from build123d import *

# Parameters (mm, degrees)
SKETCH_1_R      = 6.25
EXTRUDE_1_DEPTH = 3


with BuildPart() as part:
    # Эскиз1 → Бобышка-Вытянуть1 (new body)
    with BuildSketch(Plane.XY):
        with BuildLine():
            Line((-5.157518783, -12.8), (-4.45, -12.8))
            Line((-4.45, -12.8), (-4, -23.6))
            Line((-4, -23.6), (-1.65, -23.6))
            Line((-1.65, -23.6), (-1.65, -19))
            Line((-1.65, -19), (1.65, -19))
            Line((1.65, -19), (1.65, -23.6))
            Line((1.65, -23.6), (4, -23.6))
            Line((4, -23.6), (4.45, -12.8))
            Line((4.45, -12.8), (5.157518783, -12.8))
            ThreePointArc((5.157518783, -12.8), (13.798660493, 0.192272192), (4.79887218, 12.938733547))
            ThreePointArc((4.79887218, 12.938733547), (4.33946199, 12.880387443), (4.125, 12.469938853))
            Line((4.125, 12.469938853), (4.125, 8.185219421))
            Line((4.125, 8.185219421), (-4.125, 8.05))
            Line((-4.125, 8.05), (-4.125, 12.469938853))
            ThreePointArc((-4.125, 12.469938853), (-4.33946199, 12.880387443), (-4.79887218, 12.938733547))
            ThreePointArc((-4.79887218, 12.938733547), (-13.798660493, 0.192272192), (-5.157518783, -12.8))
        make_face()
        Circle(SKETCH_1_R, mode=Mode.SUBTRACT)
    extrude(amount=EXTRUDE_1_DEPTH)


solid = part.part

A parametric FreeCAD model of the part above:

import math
import FreeCAD as App
import Part
import Sketcher

V = App.Vector
Q = App.Units.Quantity

doc = App.newDocument("Part")
body = doc.addObject("PartDesign::Body", "Body")

# Sketch on XY plane
sketch1 = body.newObject("Sketcher::SketchObject", "Sketch")
sketch1.AttachmentSupport = (doc.getObject("XY_Plane"), [""])
sketch1.MapMode = "FlatFace"
sketch1.addGeometry(Part.LineSegment(V(-5.2, -12.8, 0), V(-4.5, -12.8, 0)), False)
sketch1.addGeometry(Part.LineSegment(V(-4.5, -12.8, 0), V(-4, -23.6, 0)), False)
sketch1.addGeometry(Part.LineSegment(V(-4, -23.6, 0), V(-1.6, -23.6, 0)), False)
sketch1.addGeometry(Part.LineSegment(V(-1.6, -23.6, 0), V(-1.6, -19, 0)), False)
sketch1.addGeometry(Part.LineSegment(V(-1.6, -19, 0), V(1.6, -19, 0)), False)
sketch1.addGeometry(Part.LineSegment(V(1.6, -19, 0), V(1.6, -23.6, 0)), False)
sketch1.addGeometry(Part.LineSegment(V(1.6, -23.6, 0), V(4, -23.6, 0)), False)
sketch1.addGeometry(Part.LineSegment(V(4, -23.6, 0), V(4.5, -12.8, 0)), False)
sketch1.addGeometry(Part.LineSegment(V(4.5, -12.8, 0), V(5.2, -12.8, 0)), False)
sketch1.addGeometry(Part.ArcOfCircle(Part.Circle(V(0, 0, 0), V(0, 0, 1), 13.8), math.radians(-68), math.radians(70)), False)
sketch1.addGeometry(Part.ArcOfCircle(Part.Circle(V(4.6, 12.5, 0), V(0, 0, 1), 0.5), math.radians(70), math.radians(180)), False)
sketch1.addGeometry(Part.LineSegment(V(4.1, 12.5, 0), V(4.1, 8.2, 0)), False)
sketch1.addGeometry(Part.LineSegment(V(4.1, 8.2, 0), V(-4.1, 8.1, 0)), False)
sketch1.addGeometry(Part.LineSegment(V(-4.1, 8.1, 0), V(-4.1, 12.5, 0)), False)
sketch1.addGeometry(Part.ArcOfCircle(Part.Circle(V(-4.6, 12.5, 0), V(0, 0, 1), 0.5), math.radians(0), math.radians(110)), False)
sketch1.addGeometry(Part.ArcOfCircle(Part.Circle(V(0, 0, 0), V(0, 0, 1), 13.8), math.radians(110), math.radians(248)), False)
sketch1.addGeometry(Part.Circle(V(0, 0, 0), V(0, 0, 1), 6.2), False)
sketch1.addConstraint(Sketcher.Constraint("Coincident", 0, 2, 1, 1))
sketch1.addConstraint(Sketcher.Constraint("Coincident", 1, 2, 2, 1))
sketch1.addConstraint(Sketcher.Constraint("Coincident", 2, 2, 3, 1))
sketch1.addConstraint(Sketcher.Constraint("Coincident", 3, 2, 4, 1))
sketch1.addConstraint(Sketcher.Constraint("Coincident", 4, 2, 5, 1))
sketch1.addConstraint(Sketcher.Constraint("Coincident", 5, 2, 6, 1))
sketch1.addConstraint(Sketcher.Constraint("Coincident", 6, 2, 7, 1))
sketch1.addConstraint(Sketcher.Constraint("Coincident", 7, 2, 8, 1))
sketch1.addConstraint(Sketcher.Constraint("Coincident", 8, 2, 9, 1))
sketch1.addConstraint(Sketcher.Constraint("Tangent", 9, 2, 10, 1))
sketch1.addConstraint(Sketcher.Constraint("Tangent", 10, 2, 11, 1))
sketch1.addConstraint(Sketcher.Constraint("Coincident", 11, 2, 12, 1))
sketch1.addConstraint(Sketcher.Constraint("Coincident", 12, 2, 13, 1))
sketch1.addConstraint(Sketcher.Constraint("Tangent", 13, 2, 14, 1))
sketch1.addConstraint(Sketcher.Constraint("Tangent", 14, 2, 15, 1))
sketch1.addConstraint(Sketcher.Constraint("Coincident", 15, 2, 0, 1))
sketch1.addConstraint(Sketcher.Constraint("Horizontal", 0))
sketch1.addConstraint(Sketcher.Constraint("Horizontal", 2))
sketch1.addConstraint(Sketcher.Constraint("Vertical", 3))
sketch1.addConstraint(Sketcher.Constraint("Horizontal", 4))
sketch1.addConstraint(Sketcher.Constraint("Vertical", 5))
sketch1.addConstraint(Sketcher.Constraint("Horizontal", 6))
sketch1.addConstraint(Sketcher.Constraint("Horizontal", 8))
sketch1.addConstraint(Sketcher.Constraint("Vertical", 11))
sketch1.addConstraint(Sketcher.Constraint("Vertical", 13))
sketch1.addConstraint(Sketcher.Constraint("Coincident", 9, 3, -1, 1))
sketch1.addConstraint(Sketcher.Constraint("Coincident", 15, 3, -1, 1))
sketch1.addConstraint(Sketcher.Constraint("Coincident", 16, 3, -1, 1))
sketch1.addConstraint(Sketcher.Constraint("Equal", 10, 14))
sketch1.addConstraint(Sketcher.Constraint("Equal", 9, 15))
sketch1.addConstraint(Sketcher.Constraint("Symmetric", 2, 2, 5, 2, -2))
sketch1.addConstraint(Sketcher.Constraint("Symmetric", 0, 2, 7, 2, -2))
sketch1.addConstraint(Sketcher.Constraint("Horizontal", 10, 3, 14, 3))
sketch1.addConstraint(Sketcher.Constraint("Equal", 2, 6))
sketch1.addConstraint(Sketcher.Constraint("Diameter", 16, Q("12.5 mm")))
sketch1.addConstraint(Sketcher.Constraint("Radius", 9, Q("13.8 mm")))
sketch1.addConstraint(Sketcher.Constraint("Radius", 10, Q("0.5 mm")))
sketch1.addConstraint(Sketcher.Constraint("DistanceX", 4, 1, 4, 2, Q("3.3 mm")))
sketch1.addConstraint(Sketcher.Constraint("DistanceY", 3, 1, 3, 2, Q("4.6 mm")))
sketch1.addConstraint(Sketcher.Constraint("DistanceX", 1, 2, -1, 1, Q("4 mm")))
sketch1.addConstraint(Sketcher.Constraint("DistanceY", 3, 2, -1, 1, Q("19 mm")))
sketch1.addConstraint(Sketcher.Constraint("DistanceY", 0, 2, -1, 1, Q("12.8 mm")))
sketch1.addConstraint(Sketcher.Constraint("DistanceX", 0, 2, 2, 2, Q("2.8 mm")))
sketch1.addConstraint(Sketcher.Constraint("DistanceY", -1, 1, 12, 2, Q("8.05 mm")))
sketch1.addConstraint(Sketcher.Constraint("DistanceX", 14, 3, 10, 3, Q("9.25 mm")))
sketch1.addConstraint(Sketcher.Constraint("DistanceY", 11, 2, 11, 1, Q("4.284719 mm")))
pad1 = body.newObject("PartDesign::Pad", "Pad")
pad1.Profile = sketch1
pad1.Length = 3

doc.recompute()
